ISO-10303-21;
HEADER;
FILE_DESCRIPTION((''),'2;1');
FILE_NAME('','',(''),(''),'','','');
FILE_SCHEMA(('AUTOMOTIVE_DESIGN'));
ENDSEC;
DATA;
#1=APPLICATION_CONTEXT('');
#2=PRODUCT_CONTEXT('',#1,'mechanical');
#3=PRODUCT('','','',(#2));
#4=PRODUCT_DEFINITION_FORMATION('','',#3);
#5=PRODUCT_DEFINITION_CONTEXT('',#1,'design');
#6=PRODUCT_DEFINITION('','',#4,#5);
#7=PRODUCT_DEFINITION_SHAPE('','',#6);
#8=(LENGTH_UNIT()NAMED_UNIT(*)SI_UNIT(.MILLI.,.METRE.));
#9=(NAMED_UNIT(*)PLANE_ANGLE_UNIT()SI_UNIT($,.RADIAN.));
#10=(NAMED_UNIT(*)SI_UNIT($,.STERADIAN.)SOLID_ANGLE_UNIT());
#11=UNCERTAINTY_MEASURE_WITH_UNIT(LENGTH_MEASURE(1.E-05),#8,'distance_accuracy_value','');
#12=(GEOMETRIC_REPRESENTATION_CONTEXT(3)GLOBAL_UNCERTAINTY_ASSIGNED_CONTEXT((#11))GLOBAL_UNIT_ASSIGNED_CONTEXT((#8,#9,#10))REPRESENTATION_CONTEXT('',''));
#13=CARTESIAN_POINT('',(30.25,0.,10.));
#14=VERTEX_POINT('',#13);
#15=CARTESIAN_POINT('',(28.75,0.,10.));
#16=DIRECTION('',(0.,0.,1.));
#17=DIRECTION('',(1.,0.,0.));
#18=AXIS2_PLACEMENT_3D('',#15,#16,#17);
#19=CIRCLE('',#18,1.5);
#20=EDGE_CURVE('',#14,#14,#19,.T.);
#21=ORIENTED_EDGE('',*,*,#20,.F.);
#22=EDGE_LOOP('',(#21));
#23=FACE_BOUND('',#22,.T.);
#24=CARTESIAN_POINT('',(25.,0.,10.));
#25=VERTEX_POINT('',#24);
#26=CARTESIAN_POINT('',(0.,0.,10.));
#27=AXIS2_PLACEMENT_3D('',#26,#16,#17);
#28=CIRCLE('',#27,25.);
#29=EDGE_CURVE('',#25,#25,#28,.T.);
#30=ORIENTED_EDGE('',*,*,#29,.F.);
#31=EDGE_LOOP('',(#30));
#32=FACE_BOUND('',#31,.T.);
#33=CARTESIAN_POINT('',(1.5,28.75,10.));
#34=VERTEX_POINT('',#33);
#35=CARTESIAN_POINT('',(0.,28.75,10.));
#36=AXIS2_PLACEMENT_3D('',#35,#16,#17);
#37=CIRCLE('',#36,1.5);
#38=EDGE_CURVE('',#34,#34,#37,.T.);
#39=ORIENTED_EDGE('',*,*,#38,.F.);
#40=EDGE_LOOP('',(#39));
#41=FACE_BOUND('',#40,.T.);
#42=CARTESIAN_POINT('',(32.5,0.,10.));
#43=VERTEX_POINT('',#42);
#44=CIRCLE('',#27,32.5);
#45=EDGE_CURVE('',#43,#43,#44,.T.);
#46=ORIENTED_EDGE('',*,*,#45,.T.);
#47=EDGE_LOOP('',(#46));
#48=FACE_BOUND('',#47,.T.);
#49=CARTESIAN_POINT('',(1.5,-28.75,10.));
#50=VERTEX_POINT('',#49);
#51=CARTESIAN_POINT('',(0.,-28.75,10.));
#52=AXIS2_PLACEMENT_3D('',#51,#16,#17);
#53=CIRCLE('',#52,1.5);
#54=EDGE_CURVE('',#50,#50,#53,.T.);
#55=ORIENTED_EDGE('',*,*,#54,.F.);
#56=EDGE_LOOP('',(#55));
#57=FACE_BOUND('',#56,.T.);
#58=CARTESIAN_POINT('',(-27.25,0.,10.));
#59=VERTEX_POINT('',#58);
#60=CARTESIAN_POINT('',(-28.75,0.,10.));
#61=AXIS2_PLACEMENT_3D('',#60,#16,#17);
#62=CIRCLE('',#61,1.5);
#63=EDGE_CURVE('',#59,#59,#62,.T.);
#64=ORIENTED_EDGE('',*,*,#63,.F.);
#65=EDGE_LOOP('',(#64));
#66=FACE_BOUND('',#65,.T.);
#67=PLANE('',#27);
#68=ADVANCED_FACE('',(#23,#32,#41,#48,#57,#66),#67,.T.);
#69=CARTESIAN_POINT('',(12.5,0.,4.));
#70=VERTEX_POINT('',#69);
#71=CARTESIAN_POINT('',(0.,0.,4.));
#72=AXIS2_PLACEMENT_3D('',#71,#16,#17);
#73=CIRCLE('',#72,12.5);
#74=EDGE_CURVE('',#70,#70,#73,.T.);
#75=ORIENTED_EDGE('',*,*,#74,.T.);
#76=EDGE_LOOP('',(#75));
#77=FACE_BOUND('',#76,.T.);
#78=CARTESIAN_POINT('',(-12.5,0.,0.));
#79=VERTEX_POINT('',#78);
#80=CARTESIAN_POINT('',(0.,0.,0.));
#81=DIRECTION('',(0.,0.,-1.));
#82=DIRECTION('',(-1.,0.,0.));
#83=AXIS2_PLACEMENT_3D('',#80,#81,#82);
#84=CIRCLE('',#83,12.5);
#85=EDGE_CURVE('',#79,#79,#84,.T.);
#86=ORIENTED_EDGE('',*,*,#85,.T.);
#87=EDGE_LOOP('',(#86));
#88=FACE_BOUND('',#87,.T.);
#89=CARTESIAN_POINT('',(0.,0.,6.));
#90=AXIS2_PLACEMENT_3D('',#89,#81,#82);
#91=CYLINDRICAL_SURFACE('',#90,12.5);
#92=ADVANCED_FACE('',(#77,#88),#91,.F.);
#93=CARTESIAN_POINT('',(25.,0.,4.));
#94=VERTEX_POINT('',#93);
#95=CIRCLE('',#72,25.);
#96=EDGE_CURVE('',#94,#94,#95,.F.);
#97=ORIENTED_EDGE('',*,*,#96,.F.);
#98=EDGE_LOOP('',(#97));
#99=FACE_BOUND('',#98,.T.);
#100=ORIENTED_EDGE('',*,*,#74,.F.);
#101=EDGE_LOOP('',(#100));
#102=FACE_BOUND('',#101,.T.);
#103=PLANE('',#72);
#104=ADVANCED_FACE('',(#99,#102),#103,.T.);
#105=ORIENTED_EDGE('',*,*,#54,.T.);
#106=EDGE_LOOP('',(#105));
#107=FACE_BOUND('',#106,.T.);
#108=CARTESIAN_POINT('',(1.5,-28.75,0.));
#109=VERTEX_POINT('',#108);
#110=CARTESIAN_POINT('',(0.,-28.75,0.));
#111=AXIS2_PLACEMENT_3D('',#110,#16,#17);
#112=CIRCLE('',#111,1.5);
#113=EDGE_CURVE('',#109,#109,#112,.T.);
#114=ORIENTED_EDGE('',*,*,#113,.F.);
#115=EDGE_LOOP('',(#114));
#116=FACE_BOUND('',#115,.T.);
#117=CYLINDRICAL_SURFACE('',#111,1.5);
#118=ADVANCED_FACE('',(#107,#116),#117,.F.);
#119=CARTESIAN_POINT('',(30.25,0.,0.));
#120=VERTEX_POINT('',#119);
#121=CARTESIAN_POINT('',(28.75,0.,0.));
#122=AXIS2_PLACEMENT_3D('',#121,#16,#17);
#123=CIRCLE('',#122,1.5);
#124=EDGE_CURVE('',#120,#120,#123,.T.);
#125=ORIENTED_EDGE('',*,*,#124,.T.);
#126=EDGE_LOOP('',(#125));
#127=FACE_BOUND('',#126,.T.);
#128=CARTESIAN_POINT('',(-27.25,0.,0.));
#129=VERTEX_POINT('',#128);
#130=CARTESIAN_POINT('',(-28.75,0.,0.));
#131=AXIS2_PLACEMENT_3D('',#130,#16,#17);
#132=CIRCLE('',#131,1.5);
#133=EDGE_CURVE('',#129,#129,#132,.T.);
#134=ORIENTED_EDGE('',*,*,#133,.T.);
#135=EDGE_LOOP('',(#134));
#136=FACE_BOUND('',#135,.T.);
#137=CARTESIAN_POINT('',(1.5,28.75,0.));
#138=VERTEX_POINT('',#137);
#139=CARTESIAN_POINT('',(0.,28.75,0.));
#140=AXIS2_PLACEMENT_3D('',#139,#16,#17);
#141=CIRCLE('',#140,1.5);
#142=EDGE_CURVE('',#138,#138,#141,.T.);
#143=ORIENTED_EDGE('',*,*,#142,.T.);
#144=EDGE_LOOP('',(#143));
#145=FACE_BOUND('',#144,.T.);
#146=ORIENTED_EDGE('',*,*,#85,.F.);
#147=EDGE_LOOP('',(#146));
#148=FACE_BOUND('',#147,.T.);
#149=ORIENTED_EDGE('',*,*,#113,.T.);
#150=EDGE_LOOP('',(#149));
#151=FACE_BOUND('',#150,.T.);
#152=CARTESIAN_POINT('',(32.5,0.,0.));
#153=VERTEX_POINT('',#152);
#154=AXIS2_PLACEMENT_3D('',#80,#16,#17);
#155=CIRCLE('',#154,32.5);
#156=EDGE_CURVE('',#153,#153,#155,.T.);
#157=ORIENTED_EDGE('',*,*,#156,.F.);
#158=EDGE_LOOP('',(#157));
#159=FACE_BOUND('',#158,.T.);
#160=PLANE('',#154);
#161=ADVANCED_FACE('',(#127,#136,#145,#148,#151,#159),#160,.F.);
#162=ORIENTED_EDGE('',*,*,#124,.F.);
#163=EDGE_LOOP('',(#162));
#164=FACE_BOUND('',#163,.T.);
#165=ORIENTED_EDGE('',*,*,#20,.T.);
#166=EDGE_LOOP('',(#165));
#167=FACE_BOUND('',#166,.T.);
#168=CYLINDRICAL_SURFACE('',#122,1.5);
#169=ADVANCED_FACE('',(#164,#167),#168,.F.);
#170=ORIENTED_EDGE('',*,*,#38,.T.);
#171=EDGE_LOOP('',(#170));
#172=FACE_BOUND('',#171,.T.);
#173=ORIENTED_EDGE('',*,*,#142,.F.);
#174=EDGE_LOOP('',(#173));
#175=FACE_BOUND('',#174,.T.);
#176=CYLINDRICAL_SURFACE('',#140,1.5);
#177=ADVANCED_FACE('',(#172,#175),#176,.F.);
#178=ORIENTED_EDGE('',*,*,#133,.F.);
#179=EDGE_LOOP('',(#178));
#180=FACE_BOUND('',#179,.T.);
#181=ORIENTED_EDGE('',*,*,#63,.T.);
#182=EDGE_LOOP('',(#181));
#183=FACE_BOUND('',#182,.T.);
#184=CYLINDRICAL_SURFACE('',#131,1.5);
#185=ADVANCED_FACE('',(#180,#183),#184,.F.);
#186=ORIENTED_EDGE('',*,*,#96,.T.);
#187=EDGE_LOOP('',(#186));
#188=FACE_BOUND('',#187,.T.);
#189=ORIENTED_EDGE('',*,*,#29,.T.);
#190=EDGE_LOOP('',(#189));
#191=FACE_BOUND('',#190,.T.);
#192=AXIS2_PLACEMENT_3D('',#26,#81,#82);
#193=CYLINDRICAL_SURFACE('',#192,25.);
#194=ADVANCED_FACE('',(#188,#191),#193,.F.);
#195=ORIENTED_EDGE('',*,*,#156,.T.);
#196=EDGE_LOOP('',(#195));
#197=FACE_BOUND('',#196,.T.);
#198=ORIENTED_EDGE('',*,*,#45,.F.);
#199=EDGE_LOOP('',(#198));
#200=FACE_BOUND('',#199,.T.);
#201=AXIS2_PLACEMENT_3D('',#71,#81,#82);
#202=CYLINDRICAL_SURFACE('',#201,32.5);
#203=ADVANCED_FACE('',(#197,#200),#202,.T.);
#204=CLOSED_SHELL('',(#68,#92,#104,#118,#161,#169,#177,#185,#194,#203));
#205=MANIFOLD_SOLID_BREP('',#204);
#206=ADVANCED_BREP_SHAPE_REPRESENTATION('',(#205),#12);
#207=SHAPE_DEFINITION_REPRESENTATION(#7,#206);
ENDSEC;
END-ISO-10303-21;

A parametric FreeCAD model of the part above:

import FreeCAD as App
import Part
import Sketcher
from FreeCAD import Vector

doc = App.newDocument("Part")
body = doc.addObject("PartDesign::Body", "Body")

# Sketch on XY plane
sketch1 = body.newObject("Sketcher::SketchObject", "Sketch")
sketch1.AttachmentSupport = (doc.getObject("XY_Plane"), [""])
sketch1.MapMode = "FlatFace"
sketch1.addGeometry(Part.Circle(Vector(0, 0, 0), Vector(0, 0, 1), 32), False)
sketch1.addConstraint(Sketcher.Constraint("Coincident", 0, 3, -1, 1))
sketch1.addConstraint(Sketcher.Constraint("Diameter", 0, 65.0))
pad1 = body.newObject("PartDesign::Pad", "Pad")
pad1.Profile = sketch1
pad1.Length = 4

# Sketch on XY plane
sketch2 = body.newObject("Sketcher::SketchObject", "Sketch001")
sketch2.AttachmentSupport = (doc.getObject("XY_Plane"), [""])
sketch2.MapMode = "FlatFace"
sketch2.AttachmentOffset = App.Placement(Vector(0, 0, 4), App.Rotation())
sketch2.addGeometry(Part.Circle(Vector(0, 0, 0), Vector(0, 0, 1), 32), False)
sketch2.addGeometry(Part.Circle(Vector(0, 0, 0), Vector(0, 0, 1), 25), False)
sketch2.addConstraint(Sketcher.Constraint("Coincident", 0, 3, -1, 1))
sketch2.addConstraint(Sketcher.Constraint("Coincident", 1, 3, -1, 1))
sketch2.addConstraint(Sketcher.Constraint("Diameter", 0, 65.0))
sketch2.addConstraint(Sketcher.Constraint("Diameter", 1, 50.0))
pad2 = body.newObject("PartDesign::Pad", "Pad001")
pad2.Profile = sketch2
pad2.Length = 6

# Sketch on XY plane
sketch3 = body.newObject("Sketcher::SketchObject", "Sketch002")
sketch3.AttachmentSupport = (doc.getObject("XY_Plane"), [""])
sketch3.MapMode = "FlatFace"
sketch3.AttachmentOffset = App.Placement(Vector(0, 0, 10), App.Rotation())
sketch3.addGeometry(Part.Circle(Vector(0, 28.8, 0), Vector(0, 0, 1), 1.5), False)
sketch3.addGeometry(Part.Circle(Vector(28.8, 0, 0), Vector(0, 0, 1), 1.5), False)
sketch3.addGeometry(Part.Circle(Vector(0, -28.8, 0), Vector(0, 0, 1), 1.5), False)
sketch3.addGeometry(Part.Circle(Vector(-28.8, 0, 0), Vector(0, 0, 1), 1.5), False)
sketch3.addConstraint(Sketcher.Constraint("Equal", 0, 1))
sketch3.addConstraint(Sketcher.Constraint("Equal", 1, 2))
sketch3.addConstraint(Sketcher.Constraint("Equal", 2, 3))
sketch3.addConstraint(Sketcher.Constraint("Symmetric", 0, 3, 2, 3, -1, 1))
sketch3.addConstraint(Sketcher.Constraint("Symmetric", 1, 3, 3, 3, -1, 1))
sketch3.addConstraint(Sketcher.Constraint("PointOnObject", 0, 3, -2))
sketch3.addConstraint(Sketcher.Constraint("PointOnObject", 1, 3, -1))
sketch3.addConstraint(Sketcher.Constraint("Diameter", 0, 3.0))
sketch3.addConstraint(Sketcher.Constraint("DistanceY", 2, 3, 0, 3, 57.5))
sketch3.addConstraint(Sketcher.Constraint("DistanceX", 3, 3, 1, 3, 57.5))
pocket1 = body.newObject("PartDesign::Pocket", "Pocket")
pocket1.Profile = sketch3
pocket1.Type = "ThroughAll"

# Sketch on XY plane
sketch4 = body.newObject("Sketcher::SketchObject", "Sketch003")
sketch4.AttachmentSupport = (doc.getObject("XY_Plane"), [""])
sketch4.MapMode = "FlatFace"
sketch4.addGeometry(Part.Circle(Vector(0, 0, 0), Vector(0, 0, 1), 12), False)
sketch4.addConstraint(Sketcher.Constraint("Coincident", 0, 3, -1, 1))
sketch4.addConstraint(Sketcher.Constraint("Diameter", 0, 25.0))
pocket2 = body.newObject("PartDesign::Pocket", "Pocket001")
pocket2.Profile = sketch4
pocket2.Length = 6
pocket2.Reversed = True

doc.recompute()
